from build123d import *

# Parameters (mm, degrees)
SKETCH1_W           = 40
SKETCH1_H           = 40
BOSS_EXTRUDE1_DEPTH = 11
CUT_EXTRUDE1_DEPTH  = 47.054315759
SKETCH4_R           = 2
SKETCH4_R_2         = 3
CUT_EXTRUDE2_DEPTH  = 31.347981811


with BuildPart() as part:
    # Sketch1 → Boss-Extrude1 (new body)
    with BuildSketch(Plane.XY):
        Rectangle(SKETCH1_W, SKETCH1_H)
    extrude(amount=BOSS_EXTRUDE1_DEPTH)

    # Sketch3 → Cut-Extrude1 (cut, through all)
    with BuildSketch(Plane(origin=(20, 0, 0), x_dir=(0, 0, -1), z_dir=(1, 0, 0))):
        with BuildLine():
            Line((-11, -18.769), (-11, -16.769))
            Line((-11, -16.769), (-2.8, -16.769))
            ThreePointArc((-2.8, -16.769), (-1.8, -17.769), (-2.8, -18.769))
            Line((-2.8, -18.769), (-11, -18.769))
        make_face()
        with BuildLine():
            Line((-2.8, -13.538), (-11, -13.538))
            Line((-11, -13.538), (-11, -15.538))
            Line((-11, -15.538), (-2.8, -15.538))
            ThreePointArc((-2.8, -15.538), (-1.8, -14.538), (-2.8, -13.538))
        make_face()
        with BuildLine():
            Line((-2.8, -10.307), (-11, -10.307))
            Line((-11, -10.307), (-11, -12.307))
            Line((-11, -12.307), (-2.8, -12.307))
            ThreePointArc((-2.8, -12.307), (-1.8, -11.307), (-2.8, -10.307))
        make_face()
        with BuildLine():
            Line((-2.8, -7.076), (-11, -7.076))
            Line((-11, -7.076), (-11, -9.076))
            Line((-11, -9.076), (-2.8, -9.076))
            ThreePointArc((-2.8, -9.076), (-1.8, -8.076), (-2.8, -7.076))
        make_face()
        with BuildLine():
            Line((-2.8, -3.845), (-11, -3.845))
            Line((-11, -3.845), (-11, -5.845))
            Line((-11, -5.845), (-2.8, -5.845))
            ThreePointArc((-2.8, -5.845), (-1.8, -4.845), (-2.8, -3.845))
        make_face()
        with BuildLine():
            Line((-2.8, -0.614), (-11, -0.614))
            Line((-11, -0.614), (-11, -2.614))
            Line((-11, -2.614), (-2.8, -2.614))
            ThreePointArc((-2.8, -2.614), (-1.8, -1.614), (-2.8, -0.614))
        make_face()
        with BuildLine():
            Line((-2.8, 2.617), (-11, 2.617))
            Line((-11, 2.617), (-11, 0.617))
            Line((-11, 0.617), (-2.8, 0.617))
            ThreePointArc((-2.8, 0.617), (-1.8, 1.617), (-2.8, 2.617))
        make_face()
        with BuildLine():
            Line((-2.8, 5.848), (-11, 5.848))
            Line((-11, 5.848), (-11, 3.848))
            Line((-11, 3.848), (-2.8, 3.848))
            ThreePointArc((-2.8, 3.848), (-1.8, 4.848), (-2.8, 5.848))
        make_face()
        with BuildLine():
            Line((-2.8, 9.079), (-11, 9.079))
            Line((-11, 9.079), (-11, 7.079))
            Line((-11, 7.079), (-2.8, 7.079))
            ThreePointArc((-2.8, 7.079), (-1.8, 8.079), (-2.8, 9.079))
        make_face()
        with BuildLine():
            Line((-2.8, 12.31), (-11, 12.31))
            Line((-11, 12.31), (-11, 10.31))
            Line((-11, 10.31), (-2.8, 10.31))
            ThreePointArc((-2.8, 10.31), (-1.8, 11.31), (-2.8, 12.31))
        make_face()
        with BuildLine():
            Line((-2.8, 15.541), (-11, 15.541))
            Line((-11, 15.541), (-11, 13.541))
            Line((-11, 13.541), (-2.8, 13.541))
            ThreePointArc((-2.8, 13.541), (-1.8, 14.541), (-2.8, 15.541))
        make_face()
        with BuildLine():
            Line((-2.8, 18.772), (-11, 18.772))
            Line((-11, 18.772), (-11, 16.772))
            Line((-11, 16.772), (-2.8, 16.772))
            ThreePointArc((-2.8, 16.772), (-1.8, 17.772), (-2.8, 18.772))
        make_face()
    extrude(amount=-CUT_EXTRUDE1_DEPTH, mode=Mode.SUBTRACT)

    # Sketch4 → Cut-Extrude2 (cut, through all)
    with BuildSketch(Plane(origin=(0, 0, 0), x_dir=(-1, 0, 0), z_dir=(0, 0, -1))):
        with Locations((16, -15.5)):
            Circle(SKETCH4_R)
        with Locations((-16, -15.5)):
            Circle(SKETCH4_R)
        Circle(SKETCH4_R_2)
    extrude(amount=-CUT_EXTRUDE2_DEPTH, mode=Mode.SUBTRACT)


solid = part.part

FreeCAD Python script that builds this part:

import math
import FreeCAD as App
import Part
import Sketcher
from FreeCAD import Vector
Q = App.Units.Quantity


def add_polygon(sketch, points):
    """Adds a closed chain of lines whose ends are joined by coincident constraints."""
    first, n = sketch.GeometryCount, len(points)
    for a, b in zip(points, points[1:] + points[:1]):
        sketch.addGeometry(Part.LineSegment(App.Vector(*a, 0), App.Vector(*b, 0)), False)
    for i in range(n):
        sketch.addConstraint(Sketcher.Constraint("Coincident", first + i, 2, first + (i + 1) % n, 1))

doc = App.newDocument("Part")
body = doc.addObject("PartDesign::Body", "Body")

sketch1 = doc.addObject("Sketcher::SketchObject", "Sketch")
body.addObject(sketch1)
sketch1.AttachmentSupport = (doc.XY_Plane, [""])
sketch1.MapMode = "FlatFace"
add_polygon(sketch1, [(-20, 20), (-20, -20), (20, -20), (20, 20)])
sketch1.addConstraint([
    Sketcher.Constraint("Vertical", 0),
    Sketcher.Constraint("Horizontal", 1),
    Sketcher.Constraint("Vertical", 2),
    Sketcher.Constraint("Horizontal", 3),
    Sketcher.Constraint("Symmetric", 0, 2, 2, 2, -1, 1),
    Sketcher.Constraint("Equal", 3, 0),
    Sketcher.Constraint("DistanceX", 1, 1, 1, 2, Q("40 mm")),
])
pad1 = doc.addObject("PartDesign::Pad", "Pad")
body.addObject(pad1)
pad1.Profile = sketch1
pad1.Length = 11

sketch2 = doc.addObject("Sketcher::SketchObject", "Sketch001")
body.addObject(sketch2)
sketch2.AttachmentSupport = (doc.YZ_Plane, [""])
sketch2.MapMode = "FlatFace"
sketch2.AttachmentOffset = App.Placement(Vector(0, 0, 20), App.Rotation())
sketch2.addGeometry([
    Part.LineSegment(Vector(-16.8, 11, 0), Vector(-18.8, 11, 0)),
    Part.LineSegment(Vector(-18.8, 11, 0), Vector(-18.8, 2.8, 0)),
    Part.ArcOfCircle(Part.Circle(Vector(-17.8, 2.8, 0), Vector(0, 0, 1), 1), math.radians(180), math.radians(360)),
    Part.LineSegment(Vector(-16.8, 2.8, 0), Vector(-16.8, 11, 0)),
    Part.LineSegment(Vector(-13.5, 2.8, 0), Vector(-13.5, 11, 0)),
    Part.LineSegment(Vector(-13.5, 11, 0), Vector(-15.5, 11, 0)),
    Part.LineSegment(Vector(-15.5, 11, 0), Vector(-15.5, 2.8, 0)),
    Part.ArcOfCircle(Part.Circle(Vector(-14.5, 2.8, 0), Vector(0, 0, 1), 1), math.radians(180), math.radians(360)),
    Part.LineSegment(Vector(-10.3, 2.8, 0), Vector(-10.3, 11, 0)),
    Part.LineSegment(Vector(-10.3, 11, 0), Vector(-12.3, 11, 0)),
    Part.LineSegment(Vector(-12.3, 11, 0), Vector(-12.3, 2.8, 0)),
    Part.ArcOfCircle(Part.Circle(Vector(-11.3, 2.8, 0), Vector(0, 0, 1), 1), math.radians(180), math.radians(360)),
    Part.LineSegment(Vector(-7.1, 2.8, 0), Vector(-7.1, 11, 0)),
    Part.LineSegment(Vector(-7.1, 11, 0), Vector(-9.1, 11, 0)),
    Part.LineSegment(Vector(-9.1, 11, 0), Vector(-9.1, 2.8, 0)),
    Part.ArcOfCircle(Part.Circle(Vector(-8.1, 2.8, 0), Vector(0, 0, 1), 1), math.radians(180), math.radians(360)),
    Part.LineSegment(Vector(-3.8, 2.8, 0), Vector(-3.8, 11, 0)),
    Part.LineSegment(Vector(-3.8, 11, 0), Vector(-5.8, 11, 0)),
    Part.LineSegment(Vector(-5.8, 11, 0), Vector(-5.8, 2.8, 0)),
    Part.ArcOfCircle(Part.Circle(Vector(-4.8, 2.8, 0), Vector(0, 0, 1), 1), math.radians(180), math.radians(360)),
    Part.LineSegment(Vector(-0.6, 2.8, 0), Vector(-0.6, 11, 0)),
    Part.LineSegment(Vector(-0.6, 11, 0), Vector(-2.6, 11, 0)),
    Part.LineSegment(Vector(-2.6, 11, 0), Vector(-2.6, 2.8, 0)),
    Part.ArcOfCircle(Part.Circle(Vector(-1.6, 2.8, 0), Vector(0, 0, 1), 1), math.radians(180), math.radians(360)),
    Part.LineSegment(Vector(2.6, 2.8, 0), Vector(2.6, 11, 0)),
    Part.LineSegment(Vector(2.6, 11, 0), Vector(0.6, 11, 0)),
    Part.LineSegment(Vector(0.6, 11, 0), Vector(0.6, 2.8, 0)),
    Part.ArcOfCircle(Part.Circle(Vector(1.6, 2.8, 0), Vector(0, 0, 1), 1), math.radians(180), math.radians(360)),
    Part.LineSegment(Vector(5.8, 2.8, 0), Vector(5.8, 11, 0)),
    Part.LineSegment(Vector(5.8, 11, 0), Vector(3.8, 11, 0)),
    Part.LineSegment(Vector(3.8, 11, 0), Vector(3.8, 2.8, 0)),
    Part.ArcOfCircle(Part.Circle(Vector(4.8, 2.8, 0), Vector(0, 0, 1), 1), math.radians(180), math.radians(360)),
    Part.LineSegment(Vector(9.1, 2.8, 0), Vector(9.1, 11, 0)),
    Part.LineSegment(Vector(9.1, 11, 0), Vector(7.1, 11, 0)),
    Part.LineSegment(Vector(7.1, 11, 0), Vector(7.1, 2.8, 0)),
    Part.ArcOfCircle(Part.Circle(Vector(8.1, 2.8, 0), Vector(0, 0, 1), 1), math.radians(180), math.radians(360)),
    Part.LineSegment(Vector(12.3, 2.8, 0), Vector(12.3, 11, 0)),
    Part.LineSegment(Vector(12.3, 11, 0), Vector(10.3, 11, 0)),
    Part.LineSegment(Vector(10.3, 11, 0), Vector(10.3, 2.8, 0)),
    Part.ArcOfCircle(Part.Circle(Vector(11.3, 2.8, 0), Vector(0, 0, 1), 1), math.radians(180), math.radians(360)),
    Part.LineSegment(Vector(15.5, 2.8, 0), Vector(15.5, 11, 0)),
    Part.LineSegment(Vector(15.5, 11, 0), Vector(13.5, 11, 0)),
    Part.LineSegment(Vector(13.5, 11, 0), Vector(13.5, 2.8, 0)),
    Part.ArcOfCircle(Part.Circle(Vector(14.5, 2.8, 0), Vector(0, 0, 1), 1), math.radians(180), math.radians(360)),
    Part.LineSegment(Vector(18.8, 2.8, 0), Vector(18.8, 11, 0)),
    Part.LineSegment(Vector(18.8, 11, 0), Vector(16.8, 11, 0)),
    Part.LineSegment(Vector(16.8, 11, 0), Vector(16.8, 2.8, 0)),
    Part.ArcOfCircle(Part.Circle(Vector(17.8, 2.8, 0), Vector(0, 0, 1), 1), math.radians(180), math.radians(360)),
], False)
sketch2.addConstraint([
    Sketcher.Constraint("Coincident", 0, 2, 1, 1),
    Sketcher.Constraint("Tangent", 1, 2, 2, 1),
    Sketcher.Constraint("Tangent", 2, 2, 3, 1),
    Sketcher.Constraint("Coincident", 3, 2, 0, 1),
    Sketcher.Constraint("Coincident", 4, 2, 5, 1),
    Sketcher.Constraint("Coincident", 5, 2, 6, 1),
    Sketcher.Constraint("Tangent", 6, 2, 7, 1),
    Sketcher.Constraint("Tangent", 7, 2, 4, 1),
    Sketcher.Constraint("Coincident", 8, 2, 9, 1),
    Sketcher.Constraint("Coincident", 9, 2, 10, 1),
    Sketcher.Constraint("Tangent", 10, 2, 11, 1),
    Sketcher.Constraint("Tangent", 11, 2, 8, 1),
    Sketcher.Constraint("Coincident", 12, 2, 13, 1),
    Sketcher.Constraint("Coincident", 13, 2, 14, 1),
    Sketcher.Constraint("Tangent", 14, 2, 15, 1),
    Sketcher.Constraint("Tangent", 15, 2, 12, 1),
    Sketcher.Constraint("Coincident", 16, 2, 17, 1),
    Sketcher.Constraint("Coincident", 17, 2, 18, 1),
    Sketcher.Constraint("Tangent", 18, 2, 19, 1),
    Sketcher.Constraint("Tangent", 19, 2, 16, 1),
    Sketcher.Constraint("Coincident", 20, 2, 21, 1),
    Sketcher.Constraint("Coincident", 21, 2, 22, 1),
    Sketcher.Constraint("Tangent", 22, 2, 23, 1),
    Sketcher.Constraint("Tangent", 23, 2, 20, 1),
    Sketcher.Constraint("Coincident", 24, 2, 25, 1),
    Sketcher.Constraint("Coincident", 25, 2, 26, 1),
    Sketcher.Constraint("Tangent", 26, 2, 27, 1),
    Sketcher.Constraint("Tangent", 27, 2, 24, 1),
    Sketcher.Constraint("Coincident", 28, 2, 29, 1),
    Sketcher.Constraint("Coincident", 29, 2, 30, 1),
    Sketcher.Constraint("Tangent", 30, 2, 31, 1),
    Sketcher.Constraint("Tangent", 31, 2, 28, 1),
    Sketcher.Constraint("Coincident", 32, 2, 33, 1),
    Sketcher.Constraint("Coincident", 33, 2, 34, 1),
    Sketcher.Constraint("Tangent", 34, 2, 35, 1),
    Sketcher.Constraint("Tangent", 35, 2, 32, 1),
    Sketcher.Constraint("Coincident", 36, 2, 37, 1),
    Sketcher.Constraint("Coincident", 37, 2, 38, 1),
    Sketcher.Constraint("Tangent", 38, 2, 39, 1),
    Sketcher.Constraint("Tangent", 39, 2, 36, 1),
    Sketcher.Constraint("Coincident", 40, 2, 41, 1),
    Sketcher.Constraint("Coincident", 41, 2, 42, 1),
    Sketcher.Constraint("Tangent", 42, 2, 43, 1),
    Sketcher.Constraint("Tangent", 43, 2, 40, 1),
    Sketcher.Constraint("Coincident", 44, 2, 45, 1),
    Sketcher.Constraint("Coincident", 45, 2, 46, 1),
    Sketcher.Constraint("Tangent", 46, 2, 47, 1),
    Sketcher.Constraint("Tangent", 47, 2, 44, 1),
    Sketcher.Constraint("Horizontal", 0),
    Sketcher.Constraint("Vertical", 1),
    Sketcher.Constraint("Vertical", 3),
    Sketcher.Constraint("Vertical", 4),
    Sketcher.Constraint("Horizontal", 5),
    Sketcher.Constraint("Vertical", 6),
    Sketcher.Constraint("Vertical", 8),
    Sketcher.Constraint("Horizontal", 9),
    Sketcher.Constraint("Vertical", 10),
    Sketcher.Constraint("Vertical", 12),
    Sketcher.Constraint("Horizontal", 13),
    Sketcher.Constraint("Vertical", 14),
    Sketcher.Constraint("Vertical", 16),
    Sketcher.Constraint("Horizontal", 17),
    Sketcher.Constraint("Vertical", 18),
    Sketcher.Constraint("Vertical", 20),
    Sketcher.Constraint("Horizontal", 21),
    Sketcher.Constraint("Vertical", 22),
    Sketcher.Constraint("Vertical", 24),
    Sketcher.Constraint("Horizontal", 25),
    Sketcher.Constraint("Vertical", 26),
    Sketcher.Constraint("Vertical", 28),
    Sketcher.Constraint("Horizontal", 29),
    Sketcher.Constraint("Vertical", 30),
    Sketcher.Constraint("Vertical", 32),
    Sketcher.Constraint("Horizontal", 33),
    Sketcher.Constraint("Vertical", 34),
    Sketcher.Constraint("Vertical", 36),
    Sketcher.Constraint("Horizontal", 37),
    Sketcher.Constraint("Vertical", 38),
    Sketcher.Constraint("Vertical", 40),
    Sketcher.Constraint("Horizontal", 41),
    Sketcher.Constraint("Vertical", 42),
    Sketcher.Constraint("Vertical", 44),
    Sketcher.Constraint("Horizontal", 45),
    Sketcher.Constraint("Vertical", 46),
    Sketcher.Constraint("Equal", 2, 7),
    Sketcher.Constraint("Equal", 7, 11),
    Sketcher.Constraint("Equal", 11, 15),
    Sketcher.Constraint("Equal", 15, 19),
    Sketcher.Constraint("Equal", 19, 23),
    Sketcher.Constraint("Equal", 23, 27),
    Sketcher.Constraint("Equal", 27, 31),
    Sketcher.Constraint("Equal", 31, 35),
    Sketcher.Constraint("Equal", 35, 39),
    Sketcher.Constraint("Equal", 39, 43),
    Sketcher.Constraint("Equal", 43, 47),
    Sketcher.Constraint("Horizontal", 2, 3, 7, 3),
    Sketcher.Constraint("Horizontal", 7, 3, 11, 3),
    Sketcher.Constraint("Horizontal", 11, 3, 15, 3),
    Sketcher.Constraint("Horizontal", 15, 3, 19, 3),
    Sketcher.Constraint("Horizontal", 19, 3, 23, 3),
    Sketcher.Constraint("Horizontal", 23, 3, 27, 3),
    Sketcher.Constraint("Horizontal", 27, 3, 31, 3),
    Sketcher.Constraint("Horizontal", 31, 3, 35, 3),
    Sketcher.Constraint("Horizontal", 35, 3, 39, 3),
    Sketcher.Constraint("Horizontal", 39, 3, 43, 3),
    Sketcher.Constraint("Horizontal", 43, 3, 47, 3),
    Sketcher.Constraint("Horizontal", 3, 2, 4, 2),
    Sketcher.Constraint("Horizontal", 5, 2, 8, 2),
    Sketcher.Constraint("Horizontal", 9, 2, 12, 2),
    Sketcher.Constraint("Horizontal", 13, 2, 16, 2),
    Sketcher.Constraint("Horizontal", 17, 2, 20, 2),
    Sketcher.Constraint("Horizontal", 21, 2, 24, 2),
    Sketcher.Constraint("Horizontal", 25, 2, 28, 2),
    Sketcher.Constraint("Horizontal", 29, 2, 32, 2),
    Sketcher.Constraint("Horizontal", 33, 2, 36, 2),
    Sketcher.Constraint("Horizontal", 37, 2, 40, 2),
    Sketcher.Constraint("Horizontal", 41, 2, 44, 2),
    Sketcher.Constraint("Radius", 2, Q("1 mm")),
    Sketcher.Constraint("DistanceY", 1, 2, 1, 1, Q("8.2 mm")),
    Sketcher.Constraint("DistanceY", -1, 1, 0, 2, Q("11 mm")),
    Sketcher.Constraint("DistanceX", -1, 1, 39, 3, Q("11.31 mm")),
    Sketcher.Constraint("DistanceX", 2, 3, -1, 1, Q("17.769 mm")),
    Sketcher.Constraint("DistanceX", 7, 3, -1, 1, Q("14.538 mm")),
    Sketcher.Constraint("DistanceX", 11, 3, -1, 1, Q("11.307 mm")),
    Sketcher.Constraint("DistanceX", 15, 3, -1, 1, Q("8.076 mm")),
    Sketcher.Constraint("DistanceX", 19, 3, -1, 1, Q("4.845 mm")),
    Sketcher.Constraint("DistanceX", 23, 3, -1, 1, Q("1.614 mm")),
    Sketcher.Constraint("DistanceX", -1, 1, 27, 3, Q("1.617 mm")),
    Sketcher.Constraint("DistanceX", -1, 1, 31, 3, Q("4.848 mm")),
    Sketcher.Constraint("DistanceX", -1, 1, 35, 3, Q("8.079 mm")),
    Sketcher.Constraint("DistanceX", -1, 1, 43, 3, Q("14.541 mm")),
    Sketcher.Constraint("DistanceX", -1, 1, 47, 3, Q("17.772 mm")),
])
pocket1 = doc.addObject("PartDesign::Pocket", "Pocket")
body.addObject(pocket1)
pocket1.Profile = sketch2
pocket1.Type = "ThroughAll"

sketch3 = doc.addObject("Sketcher::SketchObject", "Sketch002")
body.addObject(sketch3)
sketch3.AttachmentSupport = (doc.XY_Plane, [""])
sketch3.MapMode = "FlatFace"
sketch3.addGeometry([
    Part.Circle(Vector(-16, -15.5, 0), Vector(0, 0, 1), 2),
    Part.Circle(Vector(16, -15.5, 0), Vector(0, 0, 1), 2),
    Part.Circle(Vector(0, 0, 0), Vector(0, 0, 1), 3),
], False)
sketch3.addConstraint([
    Sketcher.Constraint("Coincident", 2, 3, -1, 1),
    Sketcher.Constraint("Equal", 0, 1),
    Sketcher.Constraint("Symmetric", 0, 3, 1, 3, -2),
    Sketcher.Constraint("Diameter", 0, Q("4 mm")),
    Sketcher.Constraint("Diameter", 2, Q("6 mm")),
    Sketcher.Constraint("DistanceX", 0, 3, -1, 1, Q("16 mm")),
    Sketcher.Constraint("DistanceY", 0, 3, -1, 1, Q("15.5 mm")),
])
pocket2 = doc.addObject("PartDesign::Pocket", "Pocket001")
body.addObject(pocket2)
pocket2.Profile = sketch3
pocket2.Type = "ThroughAll"
pocket2.Reversed = True

doc.recompute()
